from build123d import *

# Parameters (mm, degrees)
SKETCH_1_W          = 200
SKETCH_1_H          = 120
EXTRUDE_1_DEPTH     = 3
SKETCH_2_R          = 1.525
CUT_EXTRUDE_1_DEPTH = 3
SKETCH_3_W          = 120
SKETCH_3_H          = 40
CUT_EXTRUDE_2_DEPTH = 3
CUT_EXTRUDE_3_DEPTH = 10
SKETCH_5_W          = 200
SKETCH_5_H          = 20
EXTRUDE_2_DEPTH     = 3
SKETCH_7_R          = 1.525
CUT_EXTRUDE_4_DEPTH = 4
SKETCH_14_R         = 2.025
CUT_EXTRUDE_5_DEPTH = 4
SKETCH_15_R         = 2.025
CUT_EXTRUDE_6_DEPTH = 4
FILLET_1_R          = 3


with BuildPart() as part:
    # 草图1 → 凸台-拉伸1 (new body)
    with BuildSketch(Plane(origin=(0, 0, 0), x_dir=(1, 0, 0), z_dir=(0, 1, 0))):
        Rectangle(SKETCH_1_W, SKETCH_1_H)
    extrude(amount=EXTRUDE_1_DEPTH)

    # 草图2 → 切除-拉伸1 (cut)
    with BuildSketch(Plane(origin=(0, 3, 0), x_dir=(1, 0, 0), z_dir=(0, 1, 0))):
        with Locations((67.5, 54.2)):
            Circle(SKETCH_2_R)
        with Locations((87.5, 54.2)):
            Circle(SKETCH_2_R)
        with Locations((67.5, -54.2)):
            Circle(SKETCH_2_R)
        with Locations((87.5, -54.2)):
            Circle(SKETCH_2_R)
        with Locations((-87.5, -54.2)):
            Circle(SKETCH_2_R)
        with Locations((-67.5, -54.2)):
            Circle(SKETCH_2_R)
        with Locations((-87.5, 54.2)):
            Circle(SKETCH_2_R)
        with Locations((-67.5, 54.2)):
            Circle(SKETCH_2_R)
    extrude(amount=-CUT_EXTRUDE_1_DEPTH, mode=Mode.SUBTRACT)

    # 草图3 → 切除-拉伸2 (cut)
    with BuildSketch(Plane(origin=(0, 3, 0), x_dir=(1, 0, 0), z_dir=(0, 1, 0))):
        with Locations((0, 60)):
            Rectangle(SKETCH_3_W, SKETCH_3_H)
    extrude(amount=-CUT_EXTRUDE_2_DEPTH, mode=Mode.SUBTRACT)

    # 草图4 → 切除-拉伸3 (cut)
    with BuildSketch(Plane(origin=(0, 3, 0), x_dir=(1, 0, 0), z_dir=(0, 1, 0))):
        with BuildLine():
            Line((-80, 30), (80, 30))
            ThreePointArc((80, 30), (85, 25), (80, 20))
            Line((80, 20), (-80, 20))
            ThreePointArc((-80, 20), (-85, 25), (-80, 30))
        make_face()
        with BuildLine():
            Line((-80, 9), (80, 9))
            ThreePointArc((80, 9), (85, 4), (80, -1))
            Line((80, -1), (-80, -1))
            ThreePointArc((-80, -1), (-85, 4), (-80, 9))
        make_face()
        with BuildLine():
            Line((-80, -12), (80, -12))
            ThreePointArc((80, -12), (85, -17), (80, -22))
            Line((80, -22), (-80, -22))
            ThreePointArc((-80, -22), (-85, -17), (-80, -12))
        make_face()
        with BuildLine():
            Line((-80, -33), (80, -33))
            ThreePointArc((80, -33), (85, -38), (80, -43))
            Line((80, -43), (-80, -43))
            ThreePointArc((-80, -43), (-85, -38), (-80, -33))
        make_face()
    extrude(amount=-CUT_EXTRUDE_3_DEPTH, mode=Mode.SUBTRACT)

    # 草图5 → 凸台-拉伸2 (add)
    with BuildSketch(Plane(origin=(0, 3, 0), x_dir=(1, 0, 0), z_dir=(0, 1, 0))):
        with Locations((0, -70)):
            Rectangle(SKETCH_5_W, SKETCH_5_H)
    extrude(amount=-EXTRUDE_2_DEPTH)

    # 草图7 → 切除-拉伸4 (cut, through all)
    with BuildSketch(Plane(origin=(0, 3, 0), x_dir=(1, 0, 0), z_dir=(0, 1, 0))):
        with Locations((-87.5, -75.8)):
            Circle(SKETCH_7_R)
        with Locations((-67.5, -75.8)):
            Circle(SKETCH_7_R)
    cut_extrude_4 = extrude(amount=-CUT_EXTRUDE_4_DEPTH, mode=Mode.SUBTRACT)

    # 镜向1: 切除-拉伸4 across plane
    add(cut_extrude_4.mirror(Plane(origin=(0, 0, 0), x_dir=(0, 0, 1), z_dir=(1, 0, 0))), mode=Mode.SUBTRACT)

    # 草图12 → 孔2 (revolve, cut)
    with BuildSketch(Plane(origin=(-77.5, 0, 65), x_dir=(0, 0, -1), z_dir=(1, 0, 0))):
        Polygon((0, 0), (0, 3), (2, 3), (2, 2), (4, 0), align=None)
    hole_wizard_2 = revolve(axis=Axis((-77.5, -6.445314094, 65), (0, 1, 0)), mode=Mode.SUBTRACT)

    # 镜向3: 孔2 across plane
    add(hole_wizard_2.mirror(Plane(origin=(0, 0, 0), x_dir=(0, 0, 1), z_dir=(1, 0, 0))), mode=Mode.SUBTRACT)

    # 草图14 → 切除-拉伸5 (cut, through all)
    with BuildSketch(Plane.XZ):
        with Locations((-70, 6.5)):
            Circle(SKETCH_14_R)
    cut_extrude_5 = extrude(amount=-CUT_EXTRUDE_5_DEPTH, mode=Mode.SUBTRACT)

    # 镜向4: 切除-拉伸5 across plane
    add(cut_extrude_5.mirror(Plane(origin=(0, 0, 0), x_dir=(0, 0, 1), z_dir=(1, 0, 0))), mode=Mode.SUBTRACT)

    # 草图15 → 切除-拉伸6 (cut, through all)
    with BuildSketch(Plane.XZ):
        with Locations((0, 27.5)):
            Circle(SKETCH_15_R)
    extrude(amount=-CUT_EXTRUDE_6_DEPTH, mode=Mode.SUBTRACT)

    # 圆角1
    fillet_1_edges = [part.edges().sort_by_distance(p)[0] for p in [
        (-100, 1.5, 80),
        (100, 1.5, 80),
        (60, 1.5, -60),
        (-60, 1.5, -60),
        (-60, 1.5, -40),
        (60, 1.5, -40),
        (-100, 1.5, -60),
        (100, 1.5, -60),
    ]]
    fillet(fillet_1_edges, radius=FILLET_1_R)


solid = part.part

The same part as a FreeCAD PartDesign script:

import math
import FreeCAD as App
import Part
import Sketcher

V = App.Vector
Q = App.Units.Quantity


def edges_at(feature, points):
    """Names of the edges that pass closest to the given points."""
    edges = feature.Shape.Edges
    near = lambda p: min(range(len(edges)), key=lambda i: edges[i].distToShape(Part.Vertex(*p))[0])
    return sorted({f"Edge{near(p) + 1}" for p in points})


def add_polygon(sketch, points):
    """Adds a closed chain of lines whose ends are joined by coincident constraints."""
    first, n = sketch.GeometryCount, len(points)
    for a, b in zip(points, points[1:] + points[:1]):
        sketch.addGeometry(Part.LineSegment(App.Vector(*a, 0), App.Vector(*b, 0)), False)
    for i in range(n):
        sketch.addConstraint(Sketcher.Constraint("Coincident", first + i, 2, first + (i + 1) % n, 1))

doc = App.newDocument("Part")
params = doc.addObject("Spreadsheet::Sheet", "Params")
for row, (alias, value) in enumerate([
    ("sketch1_width", "200 mm"),
    ("sketch1_height", "120 mm"),
    ("pad1_length", "3 mm"),
    ("sketch2_diameter", "3.05 mm"),
    ("pocket1_length", "3 mm"),
    ("sketch3_width", "120 mm"),
    ("sketch3_height", "40 mm"),
    ("pocket2_length", "3 mm"),
    ("sketch4_radius", "5 mm"),
    ("sketch4_width", "160 mm"),
    ("pocket3_length", "10 mm"),
    ("sketch5_width", "200 mm"),
    ("sketch5_height", "20 mm"),
    ("pad2_length", "3 mm"),
    ("sketch6_diameter", "3.05 mm"),
    ("sketch7_width", "3 mm"),
    ("sketch7_width2", "1 mm"),
    ("sketch7_height", "4 mm"),
    ("sketch7_height2", "2 mm"),
    ("groove_angle", "360 deg"),
    ("sketch8_diameter", "4.05 mm"),
    ("sketch9_diameter", "4.05 mm"),
    ("fillet_radius", "3 mm"),
], start=1):
    params.set(f"A{row}", alias)
    params.set(f"B{row}", "=" + value)
    params.setAlias(f"B{row}", alias)

body = doc.addObject("PartDesign::Body", "Body")

# Sketch on XZ plane
sketch1 = doc.addObject("Sketcher::SketchObject", "Sketch")
body.addObject(sketch1)
sketch1.AttachmentSupport = (doc.XZ_Plane, [""])
sketch1.MapMode = "FlatFace"
add_polygon(sketch1, [(-100, -60), (-100, 60), (100, 60), (100, -60)])  # lines 0-3
sketch1.addConstraint([
    Sketcher.Constraint("Vertical", 0),
    Sketcher.Constraint("Horizontal", 1),
    Sketcher.Constraint("Vertical", 2),
    Sketcher.Constraint("Horizontal", 3),
    Sketcher.Constraint("Symmetric", 0, 2, 2, 2, -1, 1),
    Sketcher.Constraint("DistanceX", 1, 1, 1, 2, Q("200 mm")),
    Sketcher.Constraint("DistanceY", 0, 1, 0, 2, Q("120 mm")),
])
sketch1.setExpression("Constraints[9]", "Params.sketch1_width")
sketch1.setExpression("Constraints[10]", "Params.sketch1_height")
pad1 = doc.addObject("PartDesign::Pad", "Pad")
body.addObject(pad1)
pad1.Profile = sketch1
pad1.setExpression("Length", "Params.pad1_length")
pad1.Reversed = True

# Sketch on XZ plane
sketch2 = doc.addObject("Sketcher::SketchObject", "Sketch001")
body.addObject(sketch2)
sketch2.AttachmentSupport = (doc.XZ_Plane, [""])
sketch2.MapMode = "FlatFace"
sketch2.AttachmentOffset = App.Placement(V(0, 0, -3), App.Rotation())
sketch2.addGeometry([
    Part.Circle(V(67.5, -54.2, 0), V(0, 0, 1), 1.525),  # 0
    Part.Circle(V(87.5, -54.2, 0), V(0, 0, 1), 1.525),  # 1
    Part.Circle(V(67.5, 54.2, 0), V(0, 0, 1), 1.525),  # 2
    Part.Circle(V(87.5, 54.2, 0), V(0, 0, 1), 1.525),  # 3
    Part.Circle(V(-87.5, 54.2, 0), V(0, 0, 1), 1.525),  # 4
    Part.Circle(V(-67.5, 54.2, 0), V(0, 0, 1), 1.525),  # 5
    Part.Circle(V(-87.5, -54.2, 0), V(0, 0, 1), 1.525),  # 6
    Part.Circle(V(-67.5, -54.2, 0), V(0, 0, 1), 1.525),  # 7
], False)
sketch2.addConstraint([
    Sketcher.Constraint("Equal", 0, 1),
    Sketcher.Constraint("Equal", 1, 2),
    Sketcher.Constraint("Equal", 2, 3),
    Sketcher.Constraint("Equal", 3, 4),
    Sketcher.Constraint("Equal", 4, 5),
    Sketcher.Constraint("Equal", 5, 6),
    Sketcher.Constraint("Equal", 6, 7),
    Sketcher.Constraint("Symmetric", 1, 3, 4, 3, -1, 1),
    Sketcher.Constraint("Symmetric", 0, 3, 5, 3, -1, 1),
    Sketcher.Constraint("Symmetric", 3, 3, 6, 3, -1, 1),
    Sketcher.Constraint("Symmetric", 2, 3, 7, 3, -1, 1),
    Sketcher.Constraint("Symmetric", 3, 3, 4, 3, -2),
    Sketcher.Constraint("Symmetric", 2, 3, 5, 3, -2),
    Sketcher.Constraint("Horizontal", 0, 3, 1, 3),
    Sketcher.Constraint("Diameter", 0, Q("3.05 mm")),
    Sketcher.Constraint("DistanceX", 0, 3, 1, 3, Q("20 mm")),
    Sketcher.Constraint("DistanceX", 4, 3, 2, 3, Q("155 mm")),
    Sketcher.Constraint("DistanceY", 0, 3, -1, 1, Q("54.2 mm")),
])
sketch2.setExpression("Constraints[14]", "Params.sketch2_diameter")
pocket1 = doc.addObject("PartDesign::Pocket", "Pocket")
body.addObject(pocket1)
pocket1.Profile = sketch2
pocket1.setExpression("Length", "Params.pocket1_length")
pocket1.Reversed = True

# Sketch on XZ plane
sketch3 = doc.addObject("Sketcher::SketchObject", "Sketch002")
body.addObject(sketch3)
sketch3.AttachmentSupport = (doc.XZ_Plane, [""])
sketch3.MapMode = "FlatFace"
sketch3.AttachmentOffset = App.Placement(V(0, 0, -3), App.Rotation())
add_polygon(sketch3, [(-60, -80), (-60, -40), (60, -40), (60, -80)])  # lines 0-3
sketch3.addConstraint([
    Sketcher.Constraint("Vertical", 0),
    Sketcher.Constraint("Horizontal", 1),
    Sketcher.Constraint("Vertical", 2),
    Sketcher.Constraint("Horizontal", 3),
    Sketcher.Constraint("DistanceX", 1, 1, 1, 2, Q("120 mm")),
    Sketcher.Constraint("DistanceY", 0, 1, 0, 2, Q("40 mm")),
    Sketcher.Constraint("DistanceX", 0, 2, -1, 1, Q("60 mm")),
    Sketcher.Constraint("DistanceY", 0, 2, -1, 1, Q("40 mm")),
])
sketch3.setExpression("Constraints[8]", "Params.sketch3_width")
sketch3.setExpression("Constraints[9]", "Params.sketch3_height")
pocket2 = doc.addObject("PartDesign::Pocket", "Pocket001")
body.addObject(pocket2)
pocket2.Profile = sketch3
pocket2.setExpression("Length", "Params.pocket2_length")
pocket2.Reversed = True

# Sketch on XZ plane
sketch4 = doc.addObject("Sketcher::SketchObject", "Sketch003")
body.addObject(sketch4)
sketch4.AttachmentSupport = (doc.XZ_Plane, [""])
sketch4.MapMode = "FlatFace"
sketch4.AttachmentOffset = App.Placement(V(0, 0, -3), App.Rotation())
sketch4.addGeometry([
    Part.LineSegment(V(80, -30, 0), V(-80, -30, 0)),  # 0
    Part.ArcOfCircle(Part.Circle(V(-80, -25, 0), V(0, 0, 1), 5), math.radians(90), math.radians(270)),  # 1
    Part.LineSegment(V(-80, -20, 0), V(80, -20, 0)),  # 2
    Part.ArcOfCircle(Part.Circle(V(80, -25, 0), V(0, 0, 1), 5), math.radians(-90), math.radians(90)),  # 3
    Part.LineSegment(V(80, -9, 0), V(-80, -9, 0)),  # 4
    Part.ArcOfCircle(Part.Circle(V(-80, -4, 0), V(0, 0, 1), 5), math.radians(90), math.radians(270)),  # 5
    Part.LineSegment(V(-80, 1, 0), V(80, 1, 0)),  # 6
    Part.ArcOfCircle(Part.Circle(V(80, -4, 0), V(0, 0, 1), 5), math.radians(-90), math.radians(90)),  # 7
    Part.LineSegment(V(80, 12, 0), V(-80, 12, 0)),  # 8
    Part.ArcOfCircle(Part.Circle(V(-80, 17, 0), V(0, 0, 1), 5), math.radians(90), math.radians(270)),  # 9
    Part.LineSegment(V(-80, 22, 0), V(80, 22, 0)),  # 10
    Part.ArcOfCircle(Part.Circle(V(80, 17, 0), V(0, 0, 1), 5), math.radians(-90), math.radians(90)),  # 11
    Part.LineSegment(V(80, 33, 0), V(-80, 33, 0)),  # 12
    Part.ArcOfCircle(Part.Circle(V(-80, 38, 0), V(0, 0, 1), 5), math.radians(90), math.radians(270)),  # 13
    Part.LineSegment(V(-80, 43, 0), V(80, 43, 0)),  # 14
    Part.ArcOfCircle(Part.Circle(V(80, 38, 0), V(0, 0, 1), 5), math.radians(-90), math.radians(90)),  # 15
], False)
sketch4.addConstraint([
    Sketcher.Constraint("Tangent", 0, 2, 1, 2),
    Sketcher.Constraint("Tangent", 1, 1, 2, 1),
    Sketcher.Constraint("Tangent", 2, 2, 3, 2),
    Sketcher.Constraint("Tangent", 3, 1, 0, 1),
    Sketcher.Constraint("Tangent", 4, 2, 5, 2),
    Sketcher.Constraint("Tangent", 5, 1, 6, 1),
    Sketcher.Constraint("Tangent", 6, 2, 7, 2),
    Sketcher.Constraint("Tangent", 7, 1, 4, 1),
    Sketcher.Constraint("Tangent", 8, 2, 9, 2),
    Sketcher.Constraint("Tangent", 9, 1, 10, 1),
    Sketcher.Constraint("Tangent", 10, 2, 11, 2),
    Sketcher.Constraint("Tangent", 11, 1, 8, 1),
    Sketcher.Constraint("Tangent", 12, 2, 13, 2),
    Sketcher.Constraint("Tangent", 13, 1, 14, 1),
    Sketcher.Constraint("Tangent", 14, 2, 15, 2),
    Sketcher.Constraint("Tangent", 15, 1, 12, 1),
    Sketcher.Constraint("Horizontal", 0),
    Sketcher.Constraint("Horizontal", 2),
    Sketcher.Constraint("Horizontal", 4),
    Sketcher.Constraint("Horizontal", 6),
    Sketcher.Constraint("Horizontal", 8),
    Sketcher.Constraint("Horizontal", 10),
    Sketcher.Constraint("Horizontal", 12),
    Sketcher.Constraint("Horizontal", 14),
    Sketcher.Constraint("Equal", 3, 5),
    Sketcher.Constraint("Equal", 7, 9),
    Sketcher.Constraint("Equal", 11, 13),
    Sketcher.Constraint("Vertical", 1, 3, 5, 3),
    Sketcher.Constraint("Vertical", 3, 3, 7, 3),
    Sketcher.Constraint("Vertical", 5, 3, 9, 3),
    Sketcher.Constraint("Vertical", 7, 3, 11, 3),
    Sketcher.Constraint("Vertical", 9, 3, 13, 3),
    Sketcher.Constraint("Vertical", 11, 3, 15, 3),
    Sketcher.Constraint("Radius", 1, Q("5 mm")),
    Sketcher.Constraint("DistanceX", 0, 2, 0, 1, Q("160 mm")),
    Sketcher.Constraint("DistanceX", 1, 3, -1, 1, Q("80 mm")),
    Sketcher.Constraint("DistanceY", 1, 3, -1, 1, Q("25 mm")),
    Sketcher.Constraint("DistanceY", 5, 3, -1, 1, Q("4 mm")),
    Sketcher.Constraint("DistanceY", -1, 1, 9, 3, Q("17 mm")),
    Sketcher.Constraint("DistanceY", -1, 1, 13, 3, Q("38 mm")),
])
sketch4.setExpression("Constraints[33]", "Params.sketch4_radius")
sketch4.setExpression("Constraints[34]", "Params.sketch4_width")
pocket3 = doc.addObject("PartDesign::Pocket", "Pocket002")
body.addObject(pocket3)
pocket3.Profile = sketch4
pocket3.setExpression("Length", "Params.pocket3_length")
pocket3.Reversed = True

# Sketch on XZ plane
sketch5 = doc.addObject("Sketcher::SketchObject", "Sketch004")
body.addObject(sketch5)
sketch5.AttachmentSupport = (doc.XZ_Plane, [""])
sketch5.MapMode = "FlatFace"
sketch5.AttachmentOffset = App.Placement(V(0, 0, -3), App.Rotation())
add_polygon(sketch5, [(-100, 60), (-100, 80), (100, 80), (100, 60)])  # lines 0-3
sketch5.addConstraint([
    Sketcher.Constraint("Vertical", 0),
    Sketcher.Constraint("Horizontal", 1),
    Sketcher.Constraint("Vertical", 2),
    Sketcher.Constraint("Horizontal", 3),
    Sketcher.Constraint("DistanceX", 1, 1, 1, 2, Q("200 mm")),
    Sketcher.Constraint("DistanceY", 0, 1, 0, 2, Q("20 mm")),
    Sketcher.Constraint("DistanceX", 0, 2, -1, 1, Q("100 mm")),
    Sketcher.Constraint("DistanceY", -1, 1, 0, 2, Q("80 mm")),
])
sketch5.setExpression("Constraints[8]", "Params.sketch5_width")
sketch5.setExpression("Constraints[9]", "Params.sketch5_height")
pad2 = doc.addObject("PartDesign::Pad", "Pad001")
body.addObject(pad2)
pad2.Profile = sketch5
pad2.setExpression("Length", "Params.pad2_length")

# Sketch on XZ plane
sketch6 = doc.addObject("Sketcher::SketchObject", "Sketch005")
body.addObject(sketch6)
sketch6.AttachmentSupport = (doc.XZ_Plane, [""])
sketch6.MapMode = "FlatFace"
sketch6.AttachmentOffset = App.Placement(V(0, 0, -3), App.Rotation())
sketch6.addGeometry([
    Part.Circle(V(-87.5, 75.8, 0), V(0, 0, 1), 1.525),
    Part.Circle(V(-67.5, 75.8, 0), V(0, 0, 1), 1.525),
], False)
sketch6.addConstraint([
    Sketcher.Constraint("Equal", 0, 1),
    Sketcher.Constraint("Horizontal", 0, 3, 1, 3),
    Sketcher.Constraint("Diameter", 0, Q("3.05 mm")),
    Sketcher.Constraint("DistanceX", 0, 3, 1, 3, Q("20 mm")),
    Sketcher.Constraint("DistanceX", 0, 3, -1, 1, Q("87.5 mm")),
    Sketcher.Constraint("DistanceY", -1, 1, 0, 3, Q("75.8 mm")),
])
sketch6.setExpression("Constraints[2]", "Params.sketch6_diameter")
pocket4 = doc.addObject("PartDesign::Pocket", "Pocket003")
body.addObject(pocket4)
pocket4.Profile = sketch6
pocket4.Type = "ThroughAll"
pocket4.Reversed = True
doc.recompute()

mirrored = doc.addObject("PartDesign::Mirrored", "Mirrored")
body.addObject(mirrored)
mirrored.Originals = [pocket4]
mirrored.MirrorPlane = (doc.YZ_Plane, [""])
body.Tip = mirrored

# Sketch on YZ plane
sketch7 = doc.addObject("Sketcher::SketchObject", "Sketch006")
body.addObject(sketch7)
sketch7.AttachmentSupport = (doc.YZ_Plane, [""])
sketch7.MapMode = "FlatFace"
sketch7.AttachmentOffset = App.Placement(V(0, 0, -77.5), App.Rotation())
add_polygon(sketch7, [(3, 65), (0, 65), (0, 61), (2, 63), (3, 63)])  # lines 0-4
sketch7.addGeometry(Part.LineSegment(V(0, 65, 0), V(3, 65, 0)), True)  # axis
sketch7.addConstraint([
    Sketcher.Constraint("Horizontal", 0),
    Sketcher.Constraint("Vertical", 1),
    Sketcher.Constraint("Horizontal", 3),
    Sketcher.Constraint("Vertical", 4),
    Sketcher.Constraint("Horizontal", 5),
    Sketcher.Constraint("Coincident", 5, 1, 0, 2),
    Sketcher.Constraint("PointOnObject", 0, 2, -2),
    Sketcher.Constraint("Vertical", 3, 2, 5, 2),
    Sketcher.Constraint("DistanceX", 0, 2, 0, 1, Q("3 mm")),
    Sketcher.Constraint("DistanceX", 3, 1, 3, 2, Q("1 mm")),
    Sketcher.Constraint("DistanceY", 1, 2, 1, 1, Q("4 mm")),
    Sketcher.Constraint("DistanceY", 4, 1, 4, 2, Q("2 mm")),
    Sketcher.Constraint("DistanceY", -1, 1, 0, 2, Q("65 mm")),
])
sketch7.setExpression("Constraints[13]", "Params.sketch7_width")
sketch7.setExpression("Constraints[14]", "Params.sketch7_width2")
sketch7.setExpression("Constraints[15]", "Params.sketch7_height")
sketch7.setExpression("Constraints[16]", "Params.sketch7_height2")
groove = doc.addObject("PartDesign::Groove", "Groove")
body.addObject(groove)
groove.Profile = sketch7
groove.ReferenceAxis = (sketch7, ["Axis0"])
groove.setExpression("Angle", "Params.groove_angle")
doc.recompute()

mirrored2 = doc.addObject("PartDesign::Mirrored", "Mirrored001")
body.addObject(mirrored2)
mirrored2.Originals = [groove]
mirrored2.MirrorPlane = (doc.YZ_Plane, [""])
body.Tip = mirrored2

# Sketch on XZ plane
sketch8 = doc.addObject("Sketcher::SketchObject", "Sketch007")
body.addObject(sketch8)
sketch8.AttachmentSupport = (doc.XZ_Plane, [""])
sketch8.MapMode = "FlatFace"
sketch8.addGeometry(Part.Circle(V(-70, 6.5, 0), V(0, 0, 1), 2.025), False)
sketch8.addConstraint([
    Sketcher.Constraint("Diameter", 0, Q("4.05 mm")),
    Sketcher.Constraint("DistanceX", 0, 3, -1, 1, Q("70 mm")),
    Sketcher.Constraint("DistanceY", -1, 1, 0, 3, Q("6.5 mm")),
])
sketch8.setExpression("Constraints[0]", "Params.sketch8_diameter")
pocket5 = doc.addObject("PartDesign::Pocket", "Pocket004")
body.addObject(pocket5)
pocket5.Profile = sketch8
pocket5.Type = "ThroughAll"
doc.recompute()

mirrored3 = doc.addObject("PartDesign::Mirrored", "Mirrored002")
body.addObject(mirrored3)
mirrored3.Originals = [pocket5]
mirrored3.MirrorPlane = (doc.YZ_Plane, [""])
body.Tip = mirrored3

# Sketch on XZ plane
sketch9 = doc.addObject("Sketcher::SketchObject", "Sketch008")
body.addObject(sketch9)
sketch9.AttachmentSupport = (doc.XZ_Plane, [""])
sketch9.MapMode = "FlatFace"
sketch9.addGeometry(Part.Circle(V(0, 27.5, 0), V(0, 0, 1), 2.025), False)
sketch9.addConstraint([
    Sketcher.Constraint("PointOnObject", 0, 3, -2),
    Sketcher.Constraint("Diameter", 0, Q("4.05 mm")),
    Sketcher.Constraint("DistanceY", -1, 1, 0, 3, Q("27.5 mm")),
])
sketch9.setExpression("Constraints[1]", "Params.sketch9_diameter")
pocket6 = doc.addObject("PartDesign::Pocket", "Pocket005")
body.addObject(pocket6)
pocket6.Profile = sketch9
pocket6.Type = "ThroughAll"
doc.recompute()

fillet = doc.addObject("PartDesign::Fillet", "Fillet")
body.addObject(fillet)
fillet.Base = (pocket6, edges_at(pocket6, [
    (-100, 1.5, 80),
    (100, 1.5, 80),
    (60, 1.5, -60),
    (-60, 1.5, -60),
    (-60, 1.5, -40),
    (60, 1.5, -40),
    (-100, 1.5, -60),
    (100, 1.5, -60),
]))
fillet.setExpression("Radius", "Params.fillet_radius")

doc.recompute()
